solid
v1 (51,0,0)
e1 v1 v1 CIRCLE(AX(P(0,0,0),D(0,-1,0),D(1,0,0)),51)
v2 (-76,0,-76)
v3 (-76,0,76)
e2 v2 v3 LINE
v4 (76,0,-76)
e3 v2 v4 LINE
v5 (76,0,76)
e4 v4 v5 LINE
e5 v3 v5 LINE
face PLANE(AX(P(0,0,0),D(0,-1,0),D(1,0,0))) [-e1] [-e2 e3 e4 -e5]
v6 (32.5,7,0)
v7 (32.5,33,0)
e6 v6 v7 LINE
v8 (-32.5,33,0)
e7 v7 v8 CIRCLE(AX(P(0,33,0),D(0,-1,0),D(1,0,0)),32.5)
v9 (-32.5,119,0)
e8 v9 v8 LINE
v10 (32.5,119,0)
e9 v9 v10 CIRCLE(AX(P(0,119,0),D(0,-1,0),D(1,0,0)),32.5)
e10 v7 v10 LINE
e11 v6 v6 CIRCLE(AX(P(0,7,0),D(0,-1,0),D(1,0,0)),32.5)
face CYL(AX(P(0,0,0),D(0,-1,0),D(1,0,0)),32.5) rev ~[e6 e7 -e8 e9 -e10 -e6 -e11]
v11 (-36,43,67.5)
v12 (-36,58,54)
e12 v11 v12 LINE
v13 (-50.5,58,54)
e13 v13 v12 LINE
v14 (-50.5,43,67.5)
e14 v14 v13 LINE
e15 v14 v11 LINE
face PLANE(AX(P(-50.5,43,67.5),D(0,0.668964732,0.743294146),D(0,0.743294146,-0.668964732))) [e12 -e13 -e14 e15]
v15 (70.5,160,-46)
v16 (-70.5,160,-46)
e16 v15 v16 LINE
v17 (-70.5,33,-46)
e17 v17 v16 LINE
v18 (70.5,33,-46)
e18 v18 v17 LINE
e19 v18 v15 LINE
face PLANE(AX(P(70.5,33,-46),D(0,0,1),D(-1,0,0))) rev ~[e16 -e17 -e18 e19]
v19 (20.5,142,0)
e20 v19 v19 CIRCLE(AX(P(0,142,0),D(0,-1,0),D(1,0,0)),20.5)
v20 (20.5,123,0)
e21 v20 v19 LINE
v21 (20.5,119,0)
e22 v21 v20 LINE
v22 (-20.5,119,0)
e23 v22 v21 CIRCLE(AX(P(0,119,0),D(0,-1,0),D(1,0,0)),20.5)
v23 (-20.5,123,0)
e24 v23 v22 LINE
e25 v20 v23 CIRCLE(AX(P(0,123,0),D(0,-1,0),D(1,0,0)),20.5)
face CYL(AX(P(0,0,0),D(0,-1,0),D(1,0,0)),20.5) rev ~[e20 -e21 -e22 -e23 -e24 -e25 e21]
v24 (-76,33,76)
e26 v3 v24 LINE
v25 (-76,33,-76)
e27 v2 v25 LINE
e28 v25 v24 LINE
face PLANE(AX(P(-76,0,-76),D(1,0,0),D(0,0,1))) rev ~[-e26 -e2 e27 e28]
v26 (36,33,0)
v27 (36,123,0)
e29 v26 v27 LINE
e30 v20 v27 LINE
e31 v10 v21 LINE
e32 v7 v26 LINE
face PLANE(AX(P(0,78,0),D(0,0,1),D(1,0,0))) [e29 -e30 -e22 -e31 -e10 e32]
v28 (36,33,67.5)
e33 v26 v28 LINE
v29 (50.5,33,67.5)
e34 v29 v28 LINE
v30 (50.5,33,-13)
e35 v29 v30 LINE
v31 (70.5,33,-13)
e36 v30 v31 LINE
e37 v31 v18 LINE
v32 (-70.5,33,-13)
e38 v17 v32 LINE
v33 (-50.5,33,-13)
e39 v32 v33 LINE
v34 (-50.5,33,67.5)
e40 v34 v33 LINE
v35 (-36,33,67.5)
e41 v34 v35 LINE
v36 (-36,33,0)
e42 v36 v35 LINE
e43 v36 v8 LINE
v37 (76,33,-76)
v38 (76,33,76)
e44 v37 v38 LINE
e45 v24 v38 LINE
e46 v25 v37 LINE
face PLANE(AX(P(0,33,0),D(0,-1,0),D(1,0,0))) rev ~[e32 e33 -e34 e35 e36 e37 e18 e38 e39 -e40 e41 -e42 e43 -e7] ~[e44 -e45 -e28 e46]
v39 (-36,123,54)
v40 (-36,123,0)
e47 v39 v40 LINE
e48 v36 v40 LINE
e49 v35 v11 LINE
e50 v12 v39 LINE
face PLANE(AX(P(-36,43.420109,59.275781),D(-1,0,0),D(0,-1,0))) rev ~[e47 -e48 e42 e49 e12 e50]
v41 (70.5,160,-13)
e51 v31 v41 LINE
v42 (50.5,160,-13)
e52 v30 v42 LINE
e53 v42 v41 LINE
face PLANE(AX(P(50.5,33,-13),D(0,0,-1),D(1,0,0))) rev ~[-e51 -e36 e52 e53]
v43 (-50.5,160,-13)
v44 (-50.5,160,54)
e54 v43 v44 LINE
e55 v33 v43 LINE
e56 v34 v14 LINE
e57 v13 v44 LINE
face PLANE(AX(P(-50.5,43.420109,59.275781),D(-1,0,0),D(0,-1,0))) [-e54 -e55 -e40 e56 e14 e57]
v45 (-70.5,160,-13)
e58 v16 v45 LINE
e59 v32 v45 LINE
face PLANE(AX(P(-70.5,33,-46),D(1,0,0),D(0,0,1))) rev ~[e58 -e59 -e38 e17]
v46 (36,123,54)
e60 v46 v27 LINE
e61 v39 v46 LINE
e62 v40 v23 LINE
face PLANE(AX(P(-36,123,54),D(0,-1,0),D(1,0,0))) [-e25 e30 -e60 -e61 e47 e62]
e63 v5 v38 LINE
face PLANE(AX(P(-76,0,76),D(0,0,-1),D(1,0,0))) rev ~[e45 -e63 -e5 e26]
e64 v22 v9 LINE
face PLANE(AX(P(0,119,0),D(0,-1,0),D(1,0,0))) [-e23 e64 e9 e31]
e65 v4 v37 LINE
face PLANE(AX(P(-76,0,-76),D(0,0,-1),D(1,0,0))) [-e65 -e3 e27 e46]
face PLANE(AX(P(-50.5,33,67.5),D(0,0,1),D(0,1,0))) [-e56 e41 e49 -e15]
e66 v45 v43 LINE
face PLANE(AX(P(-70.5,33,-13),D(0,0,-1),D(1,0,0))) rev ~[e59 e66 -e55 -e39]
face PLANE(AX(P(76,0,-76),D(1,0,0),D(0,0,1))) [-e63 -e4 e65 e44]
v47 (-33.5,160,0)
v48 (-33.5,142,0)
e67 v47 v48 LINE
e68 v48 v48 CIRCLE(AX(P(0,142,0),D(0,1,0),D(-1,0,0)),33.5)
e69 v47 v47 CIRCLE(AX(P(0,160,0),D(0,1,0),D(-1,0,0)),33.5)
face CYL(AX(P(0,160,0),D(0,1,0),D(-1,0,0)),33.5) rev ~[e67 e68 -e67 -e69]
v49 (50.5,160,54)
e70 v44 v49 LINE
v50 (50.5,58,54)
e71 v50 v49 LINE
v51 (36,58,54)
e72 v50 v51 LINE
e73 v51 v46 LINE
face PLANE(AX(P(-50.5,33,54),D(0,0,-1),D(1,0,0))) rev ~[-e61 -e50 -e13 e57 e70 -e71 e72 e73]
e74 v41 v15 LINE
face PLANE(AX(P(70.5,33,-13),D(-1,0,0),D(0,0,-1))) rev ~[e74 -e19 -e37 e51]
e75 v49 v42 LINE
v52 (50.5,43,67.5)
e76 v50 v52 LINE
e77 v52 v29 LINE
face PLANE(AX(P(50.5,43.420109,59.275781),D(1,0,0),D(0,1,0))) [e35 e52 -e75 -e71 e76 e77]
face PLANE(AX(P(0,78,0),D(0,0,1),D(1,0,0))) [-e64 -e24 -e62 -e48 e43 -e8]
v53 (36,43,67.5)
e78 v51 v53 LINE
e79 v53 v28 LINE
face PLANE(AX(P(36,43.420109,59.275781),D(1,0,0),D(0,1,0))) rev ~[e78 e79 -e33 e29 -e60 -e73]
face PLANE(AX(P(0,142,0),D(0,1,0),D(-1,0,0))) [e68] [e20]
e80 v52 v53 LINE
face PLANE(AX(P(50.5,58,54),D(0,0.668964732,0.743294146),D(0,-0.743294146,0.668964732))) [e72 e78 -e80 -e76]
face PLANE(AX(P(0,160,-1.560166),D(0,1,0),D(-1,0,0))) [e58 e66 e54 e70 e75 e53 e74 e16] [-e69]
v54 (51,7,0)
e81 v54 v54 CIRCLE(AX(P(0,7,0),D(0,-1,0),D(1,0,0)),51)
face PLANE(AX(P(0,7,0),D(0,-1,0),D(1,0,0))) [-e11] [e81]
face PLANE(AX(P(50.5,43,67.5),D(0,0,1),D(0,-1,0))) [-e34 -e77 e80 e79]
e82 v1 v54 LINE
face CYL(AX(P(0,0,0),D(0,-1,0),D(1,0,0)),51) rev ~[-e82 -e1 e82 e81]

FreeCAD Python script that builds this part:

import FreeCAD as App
import Part
import Sketcher
Q = App.Units.Quantity


def add_polygon(sketch, points):
    """Adds a closed chain of lines whose ends are joined by coincident constraints."""
    first, n = sketch.GeometryCount, len(points)
    for a, b in zip(points, points[1:] + points[:1]):
        sketch.addGeometry(Part.LineSegment(App.Vector(*a, 0), App.Vector(*b, 0)), False)
    for i in range(n):
        sketch.addConstraint(Sketcher.Constraint("Coincident", first + i, 2, first + (i + 1) % n, 1))

doc = App.newDocument("Part")
body = doc.addObject("PartDesign::Body", "Body")

sketch1 = body.newObject("Sketcher::SketchObject", "Sketch")
sketch1.AttachmentSupport = (doc.getObject("XZ_Plane"), [""])
sketch1.MapMode = "FlatFace"
add_polygon(sketch1, [(-76, 76), (-76, -76), (76, -76), (76, 76)])
sketch1.addConstraint([
    Sketcher.Constraint("Vertical", 0),
    Sketcher.Constraint("Horizontal", 1),
    Sketcher.Constraint("Vertical", 2),
    Sketcher.Constraint("Horizontal", 3),
    Sketcher.Constraint("Symmetric", 0, 2, 2, 2, -1, 1),
    Sketcher.Constraint("Equal", 3, 0),
    Sketcher.Constraint("DistanceX", 1, 1, 1, 2, Q("152 mm")),
])
pad1 = body.newObject("PartDesign::Pad", "Pad")
pad1.Profile = sketch1
pad1.Length = 33
pad1.Reversed = True

sketch2 = body.newObject("Sketcher::SketchObject", "Sketch001")
sketch2.AttachmentSupport = (doc.getObject("XZ_Plane"), [""])
sketch2.MapMode = "FlatFace"
sketch2.AttachmentOffset = App.Placement(App.Vector(0, 0, -33), App.Rotation())
add_polygon(sketch2, [(-50, 54), (50, 54), (50, -13), (70, -13), (70, -46), (-70, -46), (-70, -13), (-50, -13)])
sketch2.addConstraint([
    Sketcher.Constraint("Horizontal", 0),
    Sketcher.Constraint("Vertical", 1),
    Sketcher.Constraint("Horizontal", 2),
    Sketcher.Constraint("Vertical", 3),
    Sketcher.Constraint("Horizontal", 4),
    Sketcher.Constraint("Vertical", 5),
    Sketcher.Constraint("Horizontal", 6),
    Sketcher.Constraint("Vertical", 7),
    Sketcher.Constraint("Symmetric", 2, 2, 5, 2, -2),
    Sketcher.Constraint("Equal", 2, 6),
    Sketcher.Constraint("DistanceX", 0, 1, 0, 2, Q("101 mm")),
    Sketcher.Constraint("DistanceX", 2, 1, 2, 2, Q("20 mm")),
    Sketcher.Constraint("DistanceY", 1, 2, 1, 1, Q("67 mm")),
    Sketcher.Constraint("DistanceY", 3, 2, 3, 1, Q("33 mm")),
    Sketcher.Constraint("DistanceY", -1, 1, 0, 2, Q("54 mm")),
])
pad2 = body.newObject("PartDesign::Pad", "Pad001")
pad2.Profile = sketch2
pad2.Length = 127
pad2.Reversed = True

sketch3 = body.newObject("Sketcher::SketchObject", "Sketch002")
sketch3.AttachmentSupport = (doc.getObject("XZ_Plane"), [""])
sketch3.MapMode = "FlatFace"
sketch3.addGeometry(Part.Circle(App.Vector(0, 0, 0), App.Vector(0, 0, 1), 20), False)
sketch3.addConstraint([
    Sketcher.Constraint("Coincident", 0, 3, -1, 1),
    Sketcher.Constraint("Diameter", 0, Q("41 mm")),
])
pocket1 = body.newObject("PartDesign::Pocket", "Pocket")
pocket1.Profile = sketch3
pocket1.Length = 156

sketch4 = body.newObject("Sketcher::SketchObject", "Sketch003")
sketch4.AttachmentSupport = (doc.getObject("XZ_Plane"), [""])
sketch4.MapMode = "FlatFace"
sketch4.addGeometry(Part.Circle(App.Vector(0, 0, 0), App.Vector(0, 0, 1), 32), False)
sketch4.addConstraint([
    Sketcher.Constraint("Coincident", 0, 3, -1, 1),
    Sketcher.Constraint("Diameter", 0, Q("65 mm")),
])
pocket2 = body.newObject("PartDesign::Pocket", "Pocket001")
pocket2.Profile = sketch4
pocket2.Length = 119

sketch5 = body.newObject("Sketcher::SketchObject", "Sketch004")
sketch5.AttachmentSupport = (doc.getObject("XZ_Plane"), [""])
sketch5.MapMode = "FlatFace"
sketch5.addGeometry([
    Part.Circle(App.Vector(0, 0, 0), App.Vector(0, 0, 1), 51),
    Part.Circle(App.Vector(0, 0, 0), App.Vector(0, 0, 1), 32),
], False)
sketch5.addConstraint([
    Sketcher.Constraint("Coincident", 0, 3, -1, 1),
    Sketcher.Constraint("Coincident", 1, 3, -1, 1),
    Sketcher.Constraint("Diameter", 0, Q("102 mm")),
    Sketcher.Constraint("Diameter", 1, Q("65 mm")),
])
pocket3 = body.newObject("PartDesign::Pocket", "Pocket002")
pocket3.Profile = sketch5
pocket3.Length = 7

sketch6 = body.newObject("Sketcher::SketchObject", "Sketch005")
sketch6.AttachmentSupport = (doc.getObject("XZ_Plane"), [""])
sketch6.MapMode = "FlatFace"
sketch6.AttachmentOffset = App.Placement(App.Vector(0, 0, -160), App.Rotation())
sketch6.addGeometry(Part.Circle(App.Vector(0, 0, 0), App.Vector(0, 0, 1), 34), False)
sketch6.addConstraint([
    Sketcher.Constraint("Coincident", 0, 3, -1, 1),
    Sketcher.Constraint("Diameter", 0, Q("67 mm")),
])
pocket4 = body.newObject("PartDesign::Pocket", "Pocket003")
pocket4.Profile = sketch6
pocket4.Length = 18
pocket4.Reversed = True

sketch7 = body.newObject("Sketcher::SketchObject", "Sketch006")
sketch7.AttachmentSupport = (doc.getObject("XY_Plane"), [""])
sketch7.MapMode = "FlatFace"
sketch7.AttachmentOffset = App.Placement(App.Vector(0, 0, 54), App.Rotation())
add_polygon(sketch7, [(-36, 123), (-36, 33), (36, 33), (36, 123)])
sketch7.addConstraint([
    Sketcher.Constraint("Vertical", 0),
    Sketcher.Constraint("Horizontal", 1),
    Sketcher.Constraint("Vertical", 2),
    Sketcher.Constraint("Horizontal", 3),
    Sketcher.Constraint("DistanceX", 1, 1, 1, 2, Q("72 mm")),
    Sketcher.Constraint("DistanceY", 0, 2, 0, 1, Q("90 mm")),
    Sketcher.Constraint("DistanceX", 0, 2, -1, 1, Q("36 mm")),
    Sketcher.Constraint("DistanceY", -1, 1, 0, 2, Q("33 mm")),
])
pocket5 = body.newObject("PartDesign::Pocket", "Pocket004")
pocket5.Profile = sketch7
pocket5.Length = 54

sketch8 = body.newObject("Sketcher::SketchObject", "Sketch007")
sketch8.AttachmentSupport = (doc.getObject("YZ_Plane"), [""])
sketch8.MapMode = "FlatFace"
sketch8.AttachmentOffset = App.Placement(App.Vector(0, 0, 50.5), App.Rotation())
add_polygon(sketch8, [(33, 68), (33, 54), (58, 54), (43, 68)])
sketch8.addConstraint([
    Sketcher.Constraint("Vertical", 0),
    Sketcher.Constraint("Horizontal", 1),
    Sketcher.Constraint("Horizontal", 3),
    Sketcher.Constraint("DistanceX", 1, 1, 1, 2, Q("25 mm")),
    Sketcher.Constraint("DistanceX", 3, 2, 3, 1, Q("10 mm")),
    Sketcher.Constraint("DistanceY", 0, 2, 0, 1, Q("13.5 mm")),
    Sketcher.Constraint("DistanceX", -1, 1, 0, 2, Q("33 mm")),
    Sketcher.Constraint("DistanceY", -1, 1, 0, 2, Q("54 mm")),
])
pad3 = body.newObject("PartDesign::Pad", "Pad002")
pad3.Profile = sketch8
pad3.Length = 14.5
pad3.Reversed = True

sketch9 = body.newObject("Sketcher::SketchObject", "Sketch008")
sketch9.AttachmentSupport = (doc.getObject("YZ_Plane"), [""])
sketch9.MapMode = "FlatFace"
sketch9.AttachmentOffset = App.Placement(App.Vector(0, 0, -50.5), App.Rotation())
add_polygon(sketch9, [(58, 54), (33, 54), (33, 68), (43, 68)])
sketch9.addConstraint([
    Sketcher.Constraint("Horizontal", 0),
    Sketcher.Constraint("Vertical", 1),
    Sketcher.Constraint("Horizontal", 2),
    Sketcher.Constraint("DistanceX", 0, 2, 0, 1, Q("25 mm")),
    Sketcher.Constraint("DistanceX", 2, 1, 2, 2, Q("10 mm")),
    Sketcher.Constraint("DistanceY", 1, 1, 1, 2, Q("13.5 mm")),
    Sketcher.Constraint("DistanceX", -1, 1, 0, 2, Q("33 mm")),
    Sketcher.Constraint("DistanceY", -1, 1, 0, 2, Q("54 mm")),
])
pad4 = body.newObject("PartDesign::Pad", "Pad003")
pad4.Profile = sketch9
pad4.Length = 14.5

doc.recompute()
